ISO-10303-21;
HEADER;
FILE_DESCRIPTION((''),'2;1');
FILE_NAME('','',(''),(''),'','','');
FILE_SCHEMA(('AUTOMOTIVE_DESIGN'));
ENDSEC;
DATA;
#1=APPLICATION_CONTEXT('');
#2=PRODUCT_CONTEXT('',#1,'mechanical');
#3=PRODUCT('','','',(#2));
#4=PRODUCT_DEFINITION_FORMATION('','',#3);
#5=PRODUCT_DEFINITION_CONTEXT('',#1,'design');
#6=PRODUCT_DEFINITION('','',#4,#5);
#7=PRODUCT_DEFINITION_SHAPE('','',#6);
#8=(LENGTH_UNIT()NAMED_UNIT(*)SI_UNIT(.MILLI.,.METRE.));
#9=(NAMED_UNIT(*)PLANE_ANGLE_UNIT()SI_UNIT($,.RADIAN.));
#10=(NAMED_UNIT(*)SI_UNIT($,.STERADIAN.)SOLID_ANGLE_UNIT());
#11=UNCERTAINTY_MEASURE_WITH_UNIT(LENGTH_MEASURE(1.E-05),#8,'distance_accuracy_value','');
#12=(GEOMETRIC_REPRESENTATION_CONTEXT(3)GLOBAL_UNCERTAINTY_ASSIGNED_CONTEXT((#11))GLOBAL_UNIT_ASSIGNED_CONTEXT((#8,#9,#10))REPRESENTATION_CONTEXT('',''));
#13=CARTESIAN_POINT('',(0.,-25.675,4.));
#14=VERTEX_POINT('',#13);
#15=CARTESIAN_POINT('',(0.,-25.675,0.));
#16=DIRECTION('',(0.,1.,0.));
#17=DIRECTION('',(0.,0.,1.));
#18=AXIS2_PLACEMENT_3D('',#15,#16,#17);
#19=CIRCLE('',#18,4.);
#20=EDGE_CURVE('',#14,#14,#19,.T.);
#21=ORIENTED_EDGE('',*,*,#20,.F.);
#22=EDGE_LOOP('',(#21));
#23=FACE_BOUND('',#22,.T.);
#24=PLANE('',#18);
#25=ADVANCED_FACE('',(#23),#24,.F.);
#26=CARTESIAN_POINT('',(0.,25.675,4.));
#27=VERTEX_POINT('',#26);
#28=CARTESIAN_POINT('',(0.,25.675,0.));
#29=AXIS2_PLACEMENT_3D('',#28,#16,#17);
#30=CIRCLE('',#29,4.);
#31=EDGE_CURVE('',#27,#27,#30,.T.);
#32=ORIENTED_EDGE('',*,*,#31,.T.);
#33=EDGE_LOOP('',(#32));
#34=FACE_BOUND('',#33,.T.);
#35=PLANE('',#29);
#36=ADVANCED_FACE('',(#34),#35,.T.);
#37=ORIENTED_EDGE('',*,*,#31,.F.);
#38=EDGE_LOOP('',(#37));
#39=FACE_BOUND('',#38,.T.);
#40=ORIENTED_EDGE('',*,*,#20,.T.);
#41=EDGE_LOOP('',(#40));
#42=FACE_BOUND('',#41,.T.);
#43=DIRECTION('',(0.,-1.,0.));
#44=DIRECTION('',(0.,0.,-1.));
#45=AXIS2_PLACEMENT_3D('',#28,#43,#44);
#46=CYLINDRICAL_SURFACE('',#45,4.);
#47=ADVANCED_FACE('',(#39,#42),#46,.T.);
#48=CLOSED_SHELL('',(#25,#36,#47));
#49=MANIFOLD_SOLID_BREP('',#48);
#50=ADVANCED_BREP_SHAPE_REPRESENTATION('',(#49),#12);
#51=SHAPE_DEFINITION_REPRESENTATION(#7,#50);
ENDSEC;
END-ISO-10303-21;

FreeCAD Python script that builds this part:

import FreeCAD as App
import Part
import Sketcher

doc = App.newDocument("Part")
body = doc.addObject("PartDesign::Body", "Body")

sketch1 = doc.addObject("Sketcher::SketchObject", "Sketch")
body.addObject(sketch1)
sketch1.AttachmentSupport = (doc.XZ_Plane, [""])
sketch1.MapMode = "FlatFace"
sketch1.addGeometry(Part.Circle(App.Vector(0, 0, 0), App.Vector(0, 0, 1), 4), False)
sketch1.addConstraint([
    Sketcher.Constraint("Coincident", 0, 3, -1, 1),
    Sketcher.Constraint("Diameter", 0, 8.0),
])
pad1 = doc.addObject("PartDesign::Pad", "Pad")
body.addObject(pad1)
pad1.Profile = sketch1
pad1.Length = 51.35
pad1.Midplane = True

doc.recompute()
